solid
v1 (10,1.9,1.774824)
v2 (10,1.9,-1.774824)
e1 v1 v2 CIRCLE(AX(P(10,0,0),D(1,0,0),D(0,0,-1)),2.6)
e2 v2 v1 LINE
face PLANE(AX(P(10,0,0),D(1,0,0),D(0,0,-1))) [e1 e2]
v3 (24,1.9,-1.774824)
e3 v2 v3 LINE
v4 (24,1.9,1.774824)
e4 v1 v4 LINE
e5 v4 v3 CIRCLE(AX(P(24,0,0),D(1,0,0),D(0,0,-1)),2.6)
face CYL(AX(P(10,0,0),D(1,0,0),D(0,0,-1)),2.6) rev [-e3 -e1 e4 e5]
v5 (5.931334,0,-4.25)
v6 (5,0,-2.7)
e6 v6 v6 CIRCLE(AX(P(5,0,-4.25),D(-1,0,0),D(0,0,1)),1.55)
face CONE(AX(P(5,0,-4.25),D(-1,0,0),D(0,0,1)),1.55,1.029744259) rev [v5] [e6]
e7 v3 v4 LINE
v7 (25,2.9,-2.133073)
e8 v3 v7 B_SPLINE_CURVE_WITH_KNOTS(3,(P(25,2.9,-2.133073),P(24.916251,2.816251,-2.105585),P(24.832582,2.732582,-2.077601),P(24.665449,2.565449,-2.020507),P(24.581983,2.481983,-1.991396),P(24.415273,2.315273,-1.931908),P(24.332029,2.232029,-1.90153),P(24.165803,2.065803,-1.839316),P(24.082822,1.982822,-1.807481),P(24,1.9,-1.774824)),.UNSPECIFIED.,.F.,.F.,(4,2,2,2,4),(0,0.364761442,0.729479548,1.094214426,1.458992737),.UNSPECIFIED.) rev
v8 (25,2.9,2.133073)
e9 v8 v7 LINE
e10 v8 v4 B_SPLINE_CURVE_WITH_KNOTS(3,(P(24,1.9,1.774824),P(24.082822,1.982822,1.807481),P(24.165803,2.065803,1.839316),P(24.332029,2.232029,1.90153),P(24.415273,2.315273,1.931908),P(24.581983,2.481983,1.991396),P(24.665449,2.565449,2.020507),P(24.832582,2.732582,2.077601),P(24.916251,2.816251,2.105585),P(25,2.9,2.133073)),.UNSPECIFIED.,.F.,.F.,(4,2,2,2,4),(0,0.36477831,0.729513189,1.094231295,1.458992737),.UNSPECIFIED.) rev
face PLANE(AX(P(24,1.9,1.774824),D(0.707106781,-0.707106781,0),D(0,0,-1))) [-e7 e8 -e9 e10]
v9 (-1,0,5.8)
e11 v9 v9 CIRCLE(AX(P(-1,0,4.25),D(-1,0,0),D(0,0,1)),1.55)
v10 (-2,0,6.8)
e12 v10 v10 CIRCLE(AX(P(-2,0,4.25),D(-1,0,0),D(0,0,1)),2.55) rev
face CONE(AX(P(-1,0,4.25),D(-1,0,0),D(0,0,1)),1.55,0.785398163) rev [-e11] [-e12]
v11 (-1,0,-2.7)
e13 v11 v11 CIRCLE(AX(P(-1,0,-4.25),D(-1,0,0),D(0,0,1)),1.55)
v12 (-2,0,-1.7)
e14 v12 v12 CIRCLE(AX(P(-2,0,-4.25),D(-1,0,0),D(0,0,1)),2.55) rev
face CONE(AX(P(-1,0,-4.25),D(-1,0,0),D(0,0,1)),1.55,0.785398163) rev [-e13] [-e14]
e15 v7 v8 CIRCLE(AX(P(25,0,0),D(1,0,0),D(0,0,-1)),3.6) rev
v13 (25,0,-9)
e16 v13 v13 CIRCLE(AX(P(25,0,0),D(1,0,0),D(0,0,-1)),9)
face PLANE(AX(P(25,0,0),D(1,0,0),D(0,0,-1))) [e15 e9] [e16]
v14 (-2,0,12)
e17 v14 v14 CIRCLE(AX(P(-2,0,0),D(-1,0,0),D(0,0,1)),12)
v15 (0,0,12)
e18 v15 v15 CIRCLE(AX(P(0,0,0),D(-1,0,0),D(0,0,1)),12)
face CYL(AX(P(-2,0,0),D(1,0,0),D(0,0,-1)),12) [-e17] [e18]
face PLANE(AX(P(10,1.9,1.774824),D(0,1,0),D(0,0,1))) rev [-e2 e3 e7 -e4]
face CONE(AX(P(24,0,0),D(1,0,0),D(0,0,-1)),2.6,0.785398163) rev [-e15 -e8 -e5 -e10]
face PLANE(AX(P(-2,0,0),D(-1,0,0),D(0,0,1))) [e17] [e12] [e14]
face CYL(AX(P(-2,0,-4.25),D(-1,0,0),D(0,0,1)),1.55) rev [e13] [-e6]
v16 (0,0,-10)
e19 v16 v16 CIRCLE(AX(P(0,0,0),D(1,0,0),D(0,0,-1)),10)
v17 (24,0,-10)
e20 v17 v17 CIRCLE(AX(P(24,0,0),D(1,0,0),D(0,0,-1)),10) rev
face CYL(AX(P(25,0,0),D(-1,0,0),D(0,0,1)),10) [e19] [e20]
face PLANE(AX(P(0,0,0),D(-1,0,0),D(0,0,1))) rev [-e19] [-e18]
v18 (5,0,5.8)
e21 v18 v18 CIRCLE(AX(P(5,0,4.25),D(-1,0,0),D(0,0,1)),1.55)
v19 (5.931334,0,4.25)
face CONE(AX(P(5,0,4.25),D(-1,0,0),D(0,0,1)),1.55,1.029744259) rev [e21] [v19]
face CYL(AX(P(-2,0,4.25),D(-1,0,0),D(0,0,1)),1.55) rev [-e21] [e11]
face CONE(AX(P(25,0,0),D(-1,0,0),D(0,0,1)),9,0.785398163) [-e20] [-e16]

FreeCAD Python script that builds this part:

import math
import FreeCAD as App
import Part
import Sketcher
from FreeCAD import Vector
Q = App.Units.Quantity


def edges_at(feature, points):
    """Names of the edges that pass closest to the given points."""
    edges = feature.Shape.Edges
    near = lambda p: min(range(len(edges)), key=lambda i: edges[i].distToShape(Part.Vertex(*p))[0])
    return sorted({f"Edge{near(p) + 1}" for p in points})

doc = App.newDocument("Part")
params = doc.addObject("Spreadsheet::Sheet", "Params")
for row, (alias, value) in enumerate([
    ("sketch1_diameter", "20 mm"),
    ("pad1_length", "25 mm"),
    ("sketch2_diameter", "24 mm"),
    ("pad2_length", "2 mm"),
    ("sketch3_radius", "2.6 mm"),
    ("pocket1_length", "15 mm"),
    ("chamfer_size", "1 mm"),
    ("chamfer2_size", "1 mm"),
    ("sketch4_diameter", "3.1 mm"),
    ("hole_diameter", "3.1 mm"),
    ("hole_depth", "7 mm"),
    ("chamfer3_size", "1 mm"),
], start=1):
    params.set(f"A{row}", alias)
    params.set(f"B{row}", "=" + value)
    params.setAlias(f"B{row}", alias)

body = doc.addObject("PartDesign::Body", "Body")

# Sketch on YZ plane
sketch1 = body.newObject("Sketcher::SketchObject", "Sketch")
sketch1.AttachmentSupport = (doc.getObject("YZ_Plane"), [""])
sketch1.MapMode = "FlatFace"
sketch1.addGeometry(Part.Circle(Vector(0, 0, 0), Vector(0, 0, 1), 10), False)
sketch1.addConstraint([
    Sketcher.Constraint("Coincident", 0, 3, -1, 1),
    Sketcher.Constraint("Diameter", 0, Q("20 mm")),
])
sketch1.setExpression("Constraints[1]", "Params.sketch1_diameter")
pad1 = body.newObject("PartDesign::Pad", "Pad")
pad1.Profile = sketch1
pad1.setExpression("Length", "Params.pad1_length")

# Sketch on YZ plane
sketch2 = body.newObject("Sketcher::SketchObject", "Sketch001")
sketch2.AttachmentSupport = (doc.getObject("YZ_Plane"), [""])
sketch2.MapMode = "FlatFace"
sketch2.addGeometry(Part.Circle(Vector(0, 0, 0), Vector(0, 0, 1), 12), False)
sketch2.addConstraint([
    Sketcher.Constraint("Coincident", 0, 3, -1, 1),
    Sketcher.Constraint("Diameter", 0, Q("24 mm")),
])
sketch2.setExpression("Constraints[1]", "Params.sketch2_diameter")
pad2 = body.newObject("PartDesign::Pad", "Pad001")
pad2.Profile = sketch2
pad2.setExpression("Length", "Params.pad2_length")
pad2.Reversed = True

# Sketch on YZ plane
sketch3 = body.newObject("Sketcher::SketchObject", "Sketch002")
sketch3.AttachmentSupport = (doc.getObject("YZ_Plane"), [""])
sketch3.MapMode = "FlatFace"
sketch3.AttachmentOffset = App.Placement(Vector(0, 0, 25), App.Rotation())
sketch3.addGeometry([
    Part.LineSegment(Vector(1.9, -1.774824, 0), Vector(1.9, 1.774824, 0)),
    Part.ArcOfCircle(Part.Circle(Vector(0, 0, 0), Vector(0, 0, 1), 2.6), math.radians(43.04908), math.radians(316.95092)),
], False)
sketch3.addConstraint([
    Sketcher.Constraint("Coincident", 0, 1, 1, 2),
    Sketcher.Constraint("Coincident", 1, 1, 0, 2),
    Sketcher.Constraint("Vertical", 0),
    Sketcher.Constraint("Coincident", 1, 3, -1, 1),
    Sketcher.Constraint("Radius", 1, Q("2.6 mm")),
    Sketcher.Constraint("DistanceX", -1, 1, 0, 1, Q("1.9 mm")),
])
sketch3.setExpression("Constraints[4]", "Params.sketch3_radius")
pocket1 = body.newObject("PartDesign::Pocket", "Pocket")
pocket1.Profile = sketch3
pocket1.setExpression("Length", "Params.pocket1_length")
doc.recompute()

chamfer = body.newObject("PartDesign::Chamfer", "Chamfer")
chamfer.Base = (pocket1, edges_at(pocket1, [(25, -2.6, 0), (25, 1.9, 0)]))
chamfer.setExpression("Size", "Params.chamfer_size")
doc.recompute()

chamfer2 = body.newObject("PartDesign::Chamfer", "Chamfer001")
chamfer2.Base = (chamfer, edges_at(chamfer, [(25, 0, 10)]))
chamfer2.setExpression("Size", "Params.chamfer2_size")

# Sketch on YZ plane
sketch4 = body.newObject("Sketcher::SketchObject", "Sketch003")
sketch4.AttachmentSupport = (doc.getObject("YZ_Plane"), [""])
sketch4.MapMode = "FlatFace"
sketch4.AttachmentOffset = App.Placement(Vector(0, 0, -2), App.Rotation())
sketch4.addGeometry([
    Part.Circle(Vector(0, 4.25, 0), Vector(0, 0, 1), 1.55),
    Part.Circle(Vector(0, -4.25, 0), Vector(0, 0, 1), 1.55),
], False)
sketch4.addConstraint([
    Sketcher.Constraint("Equal", 0, 1),
    Sketcher.Constraint("Symmetric", 0, 3, 1, 3, -1, 1),
    Sketcher.Constraint("PointOnObject", 0, 3, -2),
    Sketcher.Constraint("Diameter", 0, Q("3.1 mm")),
    Sketcher.Constraint("DistanceY", 1, 3, 0, 3, Q("8.5 mm")),
])
sketch4.setExpression("Constraints[3]", "Params.sketch4_diameter")
doc.recompute()
hole = body.newObject("PartDesign::Hole", "Hole")
hole.Profile = sketch4
hole.ThreadType = "None"
hole.setExpression("Diameter", "Params.hole_diameter")
hole.DepthType = "Dimension"
hole.setExpression("Depth", "Params.hole_depth")
hole.DrillPoint = "Angled"
hole.DrillPointAngle = 118
hole.Reversed = True
doc.recompute()

chamfer3 = body.newObject("PartDesign::Chamfer", "Chamfer002")
chamfer3.Base = (hole, edges_at(hole, [(-2, 0, 5.8), (-2, 0, -2.7)]))
chamfer3.setExpression("Size", "Params.chamfer3_size")

doc.recompute()
